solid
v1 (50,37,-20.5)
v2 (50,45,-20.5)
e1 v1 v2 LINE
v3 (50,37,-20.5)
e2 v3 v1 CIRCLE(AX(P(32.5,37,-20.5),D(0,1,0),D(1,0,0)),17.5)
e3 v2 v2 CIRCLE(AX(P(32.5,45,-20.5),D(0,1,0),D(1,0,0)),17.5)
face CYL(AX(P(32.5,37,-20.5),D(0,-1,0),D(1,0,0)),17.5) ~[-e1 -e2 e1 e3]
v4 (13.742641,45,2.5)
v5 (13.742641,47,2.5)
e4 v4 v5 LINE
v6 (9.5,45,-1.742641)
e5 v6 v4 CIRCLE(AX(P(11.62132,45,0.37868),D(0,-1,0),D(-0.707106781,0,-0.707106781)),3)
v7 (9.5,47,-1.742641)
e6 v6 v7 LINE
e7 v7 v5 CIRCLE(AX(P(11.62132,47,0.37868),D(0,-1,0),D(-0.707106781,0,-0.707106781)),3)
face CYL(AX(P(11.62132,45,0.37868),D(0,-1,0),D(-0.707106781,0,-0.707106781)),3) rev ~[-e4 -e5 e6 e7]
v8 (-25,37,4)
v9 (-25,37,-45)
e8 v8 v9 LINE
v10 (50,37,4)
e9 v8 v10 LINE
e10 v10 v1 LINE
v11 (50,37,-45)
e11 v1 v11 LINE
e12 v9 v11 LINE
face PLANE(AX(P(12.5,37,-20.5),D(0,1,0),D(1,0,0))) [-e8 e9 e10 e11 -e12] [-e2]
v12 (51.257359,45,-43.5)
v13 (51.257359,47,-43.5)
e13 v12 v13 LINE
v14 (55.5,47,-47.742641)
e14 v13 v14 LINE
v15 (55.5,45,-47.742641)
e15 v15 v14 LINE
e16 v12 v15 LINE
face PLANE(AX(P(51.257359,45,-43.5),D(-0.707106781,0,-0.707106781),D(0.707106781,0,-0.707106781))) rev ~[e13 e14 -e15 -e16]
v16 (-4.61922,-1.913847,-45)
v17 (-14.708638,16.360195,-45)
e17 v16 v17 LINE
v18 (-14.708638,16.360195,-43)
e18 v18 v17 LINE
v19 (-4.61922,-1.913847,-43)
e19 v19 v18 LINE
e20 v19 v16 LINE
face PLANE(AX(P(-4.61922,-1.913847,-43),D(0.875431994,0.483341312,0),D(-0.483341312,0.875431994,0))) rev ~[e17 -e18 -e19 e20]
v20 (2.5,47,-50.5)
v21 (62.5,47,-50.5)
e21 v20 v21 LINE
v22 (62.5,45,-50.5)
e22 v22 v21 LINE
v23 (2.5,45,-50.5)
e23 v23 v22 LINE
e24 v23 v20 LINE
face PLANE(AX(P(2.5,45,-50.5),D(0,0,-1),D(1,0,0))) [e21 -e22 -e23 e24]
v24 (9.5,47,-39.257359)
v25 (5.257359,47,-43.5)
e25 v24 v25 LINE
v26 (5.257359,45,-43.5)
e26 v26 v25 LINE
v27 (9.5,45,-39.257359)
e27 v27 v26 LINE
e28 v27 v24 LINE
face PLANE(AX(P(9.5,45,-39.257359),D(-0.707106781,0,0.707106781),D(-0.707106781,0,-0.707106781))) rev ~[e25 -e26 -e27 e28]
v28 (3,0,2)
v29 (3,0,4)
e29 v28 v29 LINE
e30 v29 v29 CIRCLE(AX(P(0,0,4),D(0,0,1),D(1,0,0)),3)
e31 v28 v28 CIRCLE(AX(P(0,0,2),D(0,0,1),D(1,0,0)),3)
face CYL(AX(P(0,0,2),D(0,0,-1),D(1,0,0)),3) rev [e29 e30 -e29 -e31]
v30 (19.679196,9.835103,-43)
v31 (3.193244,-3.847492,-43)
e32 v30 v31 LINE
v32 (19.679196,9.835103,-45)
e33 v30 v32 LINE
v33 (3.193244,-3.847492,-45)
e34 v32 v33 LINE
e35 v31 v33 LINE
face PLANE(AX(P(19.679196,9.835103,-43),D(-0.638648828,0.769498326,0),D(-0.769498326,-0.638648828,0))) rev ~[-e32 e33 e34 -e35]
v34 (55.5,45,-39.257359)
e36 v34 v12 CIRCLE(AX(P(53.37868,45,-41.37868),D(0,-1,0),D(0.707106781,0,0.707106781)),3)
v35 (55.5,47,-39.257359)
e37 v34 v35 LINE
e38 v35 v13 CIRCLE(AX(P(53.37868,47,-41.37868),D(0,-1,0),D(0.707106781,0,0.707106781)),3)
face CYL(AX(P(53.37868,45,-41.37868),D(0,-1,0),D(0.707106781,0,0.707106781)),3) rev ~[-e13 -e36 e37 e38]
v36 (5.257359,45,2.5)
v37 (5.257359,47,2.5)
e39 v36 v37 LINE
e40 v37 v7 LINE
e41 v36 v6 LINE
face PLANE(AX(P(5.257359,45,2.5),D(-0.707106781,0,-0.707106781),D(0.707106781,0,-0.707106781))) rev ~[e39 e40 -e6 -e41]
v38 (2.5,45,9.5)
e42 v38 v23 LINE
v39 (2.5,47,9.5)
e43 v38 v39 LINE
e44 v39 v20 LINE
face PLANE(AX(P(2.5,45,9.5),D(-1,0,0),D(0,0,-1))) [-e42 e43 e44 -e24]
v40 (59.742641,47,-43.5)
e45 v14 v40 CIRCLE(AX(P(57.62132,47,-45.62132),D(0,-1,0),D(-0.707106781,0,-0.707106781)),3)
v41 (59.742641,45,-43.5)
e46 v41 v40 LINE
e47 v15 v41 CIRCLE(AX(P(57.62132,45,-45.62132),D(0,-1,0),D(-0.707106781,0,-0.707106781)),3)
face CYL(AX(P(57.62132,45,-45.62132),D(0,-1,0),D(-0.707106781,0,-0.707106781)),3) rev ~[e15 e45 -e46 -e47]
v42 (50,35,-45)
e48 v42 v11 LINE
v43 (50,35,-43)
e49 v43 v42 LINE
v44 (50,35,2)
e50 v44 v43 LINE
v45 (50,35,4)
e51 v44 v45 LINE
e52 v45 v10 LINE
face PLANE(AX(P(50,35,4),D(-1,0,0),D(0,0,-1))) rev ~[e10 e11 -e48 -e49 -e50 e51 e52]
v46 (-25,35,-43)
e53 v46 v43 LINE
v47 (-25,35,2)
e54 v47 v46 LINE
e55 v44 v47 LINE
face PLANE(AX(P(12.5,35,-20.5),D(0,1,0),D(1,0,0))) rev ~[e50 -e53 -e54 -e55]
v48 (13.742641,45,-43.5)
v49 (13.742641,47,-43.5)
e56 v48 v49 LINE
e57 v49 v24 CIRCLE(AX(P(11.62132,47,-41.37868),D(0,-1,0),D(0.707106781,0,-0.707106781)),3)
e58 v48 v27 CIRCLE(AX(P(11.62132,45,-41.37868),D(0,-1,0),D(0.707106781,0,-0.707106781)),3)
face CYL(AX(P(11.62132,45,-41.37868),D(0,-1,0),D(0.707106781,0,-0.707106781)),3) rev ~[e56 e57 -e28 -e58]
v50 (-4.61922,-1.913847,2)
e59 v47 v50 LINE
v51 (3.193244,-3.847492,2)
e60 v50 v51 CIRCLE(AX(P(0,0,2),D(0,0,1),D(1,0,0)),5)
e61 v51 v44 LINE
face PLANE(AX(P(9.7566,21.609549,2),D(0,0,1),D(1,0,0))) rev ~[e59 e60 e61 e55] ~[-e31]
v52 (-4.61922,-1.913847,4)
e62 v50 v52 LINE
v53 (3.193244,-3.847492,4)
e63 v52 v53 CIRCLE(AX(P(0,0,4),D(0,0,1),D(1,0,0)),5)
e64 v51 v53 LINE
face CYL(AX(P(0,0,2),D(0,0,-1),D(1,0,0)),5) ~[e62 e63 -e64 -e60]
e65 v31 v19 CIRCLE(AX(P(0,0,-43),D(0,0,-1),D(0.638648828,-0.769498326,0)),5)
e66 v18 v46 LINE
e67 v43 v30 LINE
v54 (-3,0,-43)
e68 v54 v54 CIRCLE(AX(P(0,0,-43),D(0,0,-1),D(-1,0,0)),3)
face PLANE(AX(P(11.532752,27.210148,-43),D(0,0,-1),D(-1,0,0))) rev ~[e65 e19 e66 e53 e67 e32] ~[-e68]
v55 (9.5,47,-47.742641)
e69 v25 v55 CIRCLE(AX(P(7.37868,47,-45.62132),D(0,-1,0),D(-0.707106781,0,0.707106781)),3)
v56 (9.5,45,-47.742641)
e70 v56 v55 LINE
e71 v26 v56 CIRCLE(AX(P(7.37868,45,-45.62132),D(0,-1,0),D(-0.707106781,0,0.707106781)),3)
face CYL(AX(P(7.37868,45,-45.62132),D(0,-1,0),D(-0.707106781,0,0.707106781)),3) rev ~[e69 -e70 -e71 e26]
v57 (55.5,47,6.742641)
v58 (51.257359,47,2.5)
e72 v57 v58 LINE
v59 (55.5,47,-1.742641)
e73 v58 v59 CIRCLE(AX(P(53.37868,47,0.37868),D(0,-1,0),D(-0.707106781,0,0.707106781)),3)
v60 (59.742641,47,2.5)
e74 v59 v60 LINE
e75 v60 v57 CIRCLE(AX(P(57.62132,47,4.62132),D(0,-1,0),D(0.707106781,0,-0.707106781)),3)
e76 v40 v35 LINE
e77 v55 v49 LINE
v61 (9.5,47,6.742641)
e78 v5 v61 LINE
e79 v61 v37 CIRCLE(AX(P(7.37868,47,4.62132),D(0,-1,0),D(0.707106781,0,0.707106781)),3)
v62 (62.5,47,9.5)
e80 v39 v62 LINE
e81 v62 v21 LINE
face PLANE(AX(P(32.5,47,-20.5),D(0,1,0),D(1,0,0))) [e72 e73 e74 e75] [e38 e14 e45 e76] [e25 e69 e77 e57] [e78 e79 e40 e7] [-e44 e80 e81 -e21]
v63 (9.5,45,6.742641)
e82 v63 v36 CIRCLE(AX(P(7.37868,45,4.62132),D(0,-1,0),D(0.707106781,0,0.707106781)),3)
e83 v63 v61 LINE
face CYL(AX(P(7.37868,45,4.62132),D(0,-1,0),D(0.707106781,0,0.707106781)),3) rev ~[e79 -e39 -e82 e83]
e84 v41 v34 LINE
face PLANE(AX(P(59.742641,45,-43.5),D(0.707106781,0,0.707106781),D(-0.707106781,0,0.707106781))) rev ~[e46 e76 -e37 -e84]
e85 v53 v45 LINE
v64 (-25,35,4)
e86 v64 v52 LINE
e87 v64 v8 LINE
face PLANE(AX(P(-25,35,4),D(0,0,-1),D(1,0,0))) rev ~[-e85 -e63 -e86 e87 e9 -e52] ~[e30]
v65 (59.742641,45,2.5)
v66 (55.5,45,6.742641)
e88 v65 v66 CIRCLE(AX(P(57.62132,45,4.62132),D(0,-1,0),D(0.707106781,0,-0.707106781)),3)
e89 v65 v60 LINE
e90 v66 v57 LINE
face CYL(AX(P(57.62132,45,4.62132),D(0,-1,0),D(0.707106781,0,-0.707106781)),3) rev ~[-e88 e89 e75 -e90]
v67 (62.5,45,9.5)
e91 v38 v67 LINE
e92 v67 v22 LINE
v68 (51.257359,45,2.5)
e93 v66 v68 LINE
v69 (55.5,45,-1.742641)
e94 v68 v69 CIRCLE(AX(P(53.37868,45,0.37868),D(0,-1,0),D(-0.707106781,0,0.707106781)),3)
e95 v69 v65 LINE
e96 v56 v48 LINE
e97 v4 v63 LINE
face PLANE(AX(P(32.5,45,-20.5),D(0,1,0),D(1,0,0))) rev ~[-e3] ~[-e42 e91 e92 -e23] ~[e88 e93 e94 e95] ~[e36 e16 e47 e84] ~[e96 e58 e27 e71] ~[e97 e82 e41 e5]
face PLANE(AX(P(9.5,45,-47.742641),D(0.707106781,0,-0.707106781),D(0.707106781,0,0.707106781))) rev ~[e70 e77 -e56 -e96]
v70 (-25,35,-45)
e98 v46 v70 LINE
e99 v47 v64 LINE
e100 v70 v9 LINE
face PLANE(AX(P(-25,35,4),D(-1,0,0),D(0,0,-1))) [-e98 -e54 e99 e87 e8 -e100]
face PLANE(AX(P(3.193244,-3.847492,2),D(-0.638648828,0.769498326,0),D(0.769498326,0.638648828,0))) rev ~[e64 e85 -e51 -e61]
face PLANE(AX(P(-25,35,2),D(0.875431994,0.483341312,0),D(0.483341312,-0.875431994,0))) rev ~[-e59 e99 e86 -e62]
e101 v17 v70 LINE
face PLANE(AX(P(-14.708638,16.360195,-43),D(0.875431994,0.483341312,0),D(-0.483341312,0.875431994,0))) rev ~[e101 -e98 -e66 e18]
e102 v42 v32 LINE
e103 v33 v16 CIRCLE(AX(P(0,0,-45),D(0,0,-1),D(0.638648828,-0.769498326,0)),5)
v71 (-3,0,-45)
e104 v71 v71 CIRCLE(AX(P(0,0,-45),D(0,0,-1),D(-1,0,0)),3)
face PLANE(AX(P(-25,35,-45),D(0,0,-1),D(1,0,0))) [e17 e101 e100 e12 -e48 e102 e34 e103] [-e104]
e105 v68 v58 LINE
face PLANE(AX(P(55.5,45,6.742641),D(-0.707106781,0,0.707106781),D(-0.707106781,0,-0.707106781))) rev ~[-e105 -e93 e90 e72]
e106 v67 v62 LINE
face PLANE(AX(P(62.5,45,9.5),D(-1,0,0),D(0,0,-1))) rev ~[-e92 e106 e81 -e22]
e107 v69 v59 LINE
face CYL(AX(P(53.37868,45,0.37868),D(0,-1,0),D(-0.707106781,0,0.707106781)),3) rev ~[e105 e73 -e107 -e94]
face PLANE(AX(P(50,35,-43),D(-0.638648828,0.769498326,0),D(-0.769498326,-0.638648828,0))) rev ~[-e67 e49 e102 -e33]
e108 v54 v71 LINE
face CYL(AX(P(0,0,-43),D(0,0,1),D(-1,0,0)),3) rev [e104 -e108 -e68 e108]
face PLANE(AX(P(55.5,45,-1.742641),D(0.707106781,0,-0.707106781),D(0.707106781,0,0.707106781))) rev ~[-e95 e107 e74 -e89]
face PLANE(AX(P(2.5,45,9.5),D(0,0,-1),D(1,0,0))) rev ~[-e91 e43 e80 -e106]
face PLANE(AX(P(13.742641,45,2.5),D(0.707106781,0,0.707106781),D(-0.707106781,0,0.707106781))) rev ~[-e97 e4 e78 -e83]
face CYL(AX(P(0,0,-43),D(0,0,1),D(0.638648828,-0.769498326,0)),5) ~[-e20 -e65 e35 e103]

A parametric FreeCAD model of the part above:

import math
import FreeCAD as App
import Part
import Sketcher
from FreeCAD import Vector
Q = App.Units.Quantity

doc = App.newDocument("Part")
body = doc.addObject("PartDesign::Body", "Body")

# Sketch on XY plane
sketch1 = body.newObject("Sketcher::SketchObject", "Sketch")
sketch1.AttachmentSupport = (doc.getObject("XY_Plane"), [""])
sketch1.MapMode = "FlatFace"
sketch1.AttachmentOffset = App.Placement(Vector(0, 0, 2), App.Rotation())
sketch1.addGeometry(Part.LineSegment(Vector(50, 35, 0), Vector(-25, 35, 0)), False)
sketch1.addGeometry(Part.LineSegment(Vector(-25, 35, 0), Vector(-4.6, -1.9, 0)), False)
sketch1.addGeometry(Part.ArcOfCircle(Part.Circle(Vector(0, 0, 0), Vector(0, 0, 1), 5), math.radians(-157), math.radians(-50)), False)
sketch1.addGeometry(Part.LineSegment(Vector(3.2, -3.8, 0), Vector(50, 35, 0)), False)
sketch1.addGeometry(Part.Circle(Vector(0, 0, 0), Vector(0, 0, 1), 3), False)
sketch1.addConstraint(Sketcher.Constraint("Coincident", 0, 2, 1, 1))
sketch1.addConstraint(Sketcher.Constraint("Coincident", 1, 2, 2, 1))
sketch1.addConstraint(Sketcher.Constraint("Tangent", 2, 2, 3, 1))
sketch1.addConstraint(Sketcher.Constraint("Coincident", 3, 2, 0, 1))
sketch1.addConstraint(Sketcher.Constraint("Horizontal", 0))
sketch1.addConstraint(Sketcher.Constraint("Coincident", 2, 3, -1, 1))
sketch1.addConstraint(Sketcher.Constraint("Coincident", 4, 3, -1, 1))
sketch1.addConstraint(Sketcher.Constraint("Diameter", 4, Q("6 mm")))
sketch1.addConstraint(Sketcher.Constraint("Radius", 2, Q("5 mm")))
sketch1.addConstraint(Sketcher.Constraint("DistanceX", 0, 2, 0, 1, Q("75 mm")))
sketch1.addConstraint(Sketcher.Constraint("DistanceX", 0, 2, -1, 1, Q("25 mm")))
sketch1.addConstraint(Sketcher.Constraint("DistanceY", -1, 1, 0, 2, Q("35 mm")))
sketch1.addConstraint(Sketcher.Constraint("DistanceX", 1, 2, -1, 1, Q("4.61922 mm")))
pad1 = body.newObject("PartDesign::Pad", "Pad")
pad1.Profile = sketch1
pad1.Length = 2
body2 = doc.addObject("PartDesign::Body", "Body001")

# Sketch on XY plane
sketch2 = body2.newObject("Sketcher::SketchObject", "Sketch001")
sketch2.AttachmentSupport = (doc.getObject("XY_Plane001"), [""])
sketch2.MapMode = "FlatFace"
sketch2.AttachmentOffset = App.Placement(Vector(0, 0, -43), App.Rotation())
sketch2.addGeometry(Part.LineSegment(Vector(-14.7, 16.4, 0), Vector(-25, 35, 0)), False)
sketch2.addGeometry(Part.LineSegment(Vector(-25, 35, 0), Vector(50, 35, 0)), False)
sketch2.addGeometry(Part.LineSegment(Vector(50, 35, 0), Vector(19.7, 9.8, 0)), False)
sketch2.addGeometry(Part.LineSegment(Vector(19.7, 9.8, 0), Vector(3.2, -3.8, 0)), False)
sketch2.addGeometry(Part.ArcOfCircle(Part.Circle(Vector(0, 0, 0), Vector(0, 0, 1), 5), math.radians(-157), math.radians(-50)), False)
sketch2.addGeometry(Part.LineSegment(Vector(-4.6, -1.9, 0), Vector(-14.7, 16.4, 0)), False)
sketch2.addGeometry(Part.Circle(Vector(0, 0, 0), Vector(0, 0, 1), 3), False)
sketch2.addConstraint(Sketcher.Constraint("Coincident", 0, 2, 1, 1))
sketch2.addConstraint(Sketcher.Constraint("Coincident", 1, 2, 2, 1))
sketch2.addConstraint(Sketcher.Constraint("Coincident", 2, 2, 3, 1))
sketch2.addConstraint(Sketcher.Constraint("Tangent", 3, 2, 4, 2))
sketch2.addConstraint(Sketcher.Constraint("Coincident", 4, 1, 5, 1))
sketch2.addConstraint(Sketcher.Constraint("Coincident", 5, 2, 0, 1))
sketch2.addConstraint(Sketcher.Constraint("Horizontal", 1))
sketch2.addConstraint(Sketcher.Constraint("Coincident", 4, 3, -1, 1))
sketch2.addConstraint(Sketcher.Constraint("Coincident", 6, 3, -1, 1))
sketch2.addConstraint(Sketcher.Constraint("Parallel", 2, 3))
sketch2.addConstraint(Sketcher.Constraint("Parallel", 0, 5))
sketch2.addConstraint(Sketcher.Constraint("Diameter", 6, Q("6 mm")))
sketch2.addConstraint(Sketcher.Constraint("Radius", 4, Q("5 mm")))
sketch2.addConstraint(Sketcher.Constraint("DistanceX", 1, 1, 1, 2, Q("75 mm")))
sketch2.addConstraint(Sketcher.Constraint("DistanceX", 0, 2, -1, 1, Q("25 mm")))
sketch2.addConstraint(Sketcher.Constraint("DistanceY", -1, 1, 0, 2, Q("35 mm")))
sketch2.addConstraint(Sketcher.Constraint("Distance", 2, Q("39.40334 mm")))
sketch2.addConstraint(Sketcher.Constraint("DistanceX", 4, 1, -1, 1, Q("4.61922 mm")))
sketch2.addConstraint(Sketcher.Constraint("DistanceX", 5, 2, 4, 1, Q("10.089418 mm")))
pad2 = body2.newObject("PartDesign::Pad", "Pad001")
pad2.Profile = sketch2
pad2.Length = 2
pad2.Reversed = True
body.AllowCompound = True
doc.recompute()

boolean = body.newObject("PartDesign::Boolean", "Boolean")
boolean.Type = "Fuse"
boolean.addObjects([body2])

# Sketch on XZ plane
sketch3 = body.newObject("Sketcher::SketchObject", "Sketch002")
sketch3.AttachmentSupport = (doc.getObject("XZ_Plane"), [""])
sketch3.MapMode = "FlatFace"
sketch3.AttachmentOffset = App.Placement(Vector(0, 0, -35), App.Rotation())
sketch3.addGeometry(Part.LineSegment(Vector(-25, -45, 0), Vector(-25, 4, 0)), False)
sketch3.addGeometry(Part.LineSegment(Vector(-25, 4, 0), Vector(50, 4, 0)), False)
sketch3.addGeometry(Part.LineSegment(Vector(50, 4, 0), Vector(50, -45, 0)), False)
sketch3.addGeometry(Part.LineSegment(Vector(50, -45, 0), Vector(-25, -45, 0)), False)
sketch3.addConstraint(Sketcher.Constraint("Coincident", 0, 2, 1, 1))
sketch3.addConstraint(Sketcher.Constraint("Coincident", 1, 2, 2, 1))
sketch3.addConstraint(Sketcher.Constraint("Coincident", 2, 2, 3, 1))
sketch3.addConstraint(Sketcher.Constraint("Coincident", 3, 2, 0, 1))
sketch3.addConstraint(Sketcher.Constraint("Vertical", 0))
sketch3.addConstraint(Sketcher.Constraint("Horizontal", 1))
sketch3.addConstraint(Sketcher.Constraint("Vertical", 2))
sketch3.addConstraint(Sketcher.Constraint("Horizontal", 3))
sketch3.addConstraint(Sketcher.Constraint("DistanceX", 1, 1, 1, 2, Q("75 mm")))
sketch3.addConstraint(Sketcher.Constraint("DistanceY", 0, 1, 0, 2, Q("49 mm")))
sketch3.addConstraint(Sketcher.Constraint("DistanceX", 0, 2, -1, 1, Q("25 mm")))
sketch3.addConstraint(Sketcher.Constraint("DistanceY", -1, 1, 0, 2, Q("4 mm")))
pad3 = body.newObject("PartDesign::Pad", "Pad002")
pad3.Profile = sketch3
pad3.Length = 2
pad3.Reversed = True

# Sketch on XZ plane
sketch4 = body.newObject("Sketcher::SketchObject", "Sketch003")
sketch4.AttachmentSupport = (doc.getObject("XZ_Plane"), [""])
sketch4.MapMode = "FlatFace"
sketch4.AttachmentOffset = App.Placement(Vector(0, 0, -37), App.Rotation())
sketch4.addGeometry(Part.Circle(Vector(32, -20, 0), Vector(0, 0, 1), 18), False)
sketch4.addConstraint(Sketcher.Constraint("Diameter", 0, Q("35 mm")))
sketch4.addConstraint(Sketcher.Constraint("DistanceX", -1, 1, 0, 3, Q("32.5 mm")))
sketch4.addConstraint(Sketcher.Constraint("DistanceY", 0, 3, -1, 1, Q("20.5 mm")))
pad4 = body.newObject("PartDesign::Pad", "Pad003")
pad4.Profile = sketch4
pad4.Length = 8
pad4.Reversed = True

# Sketch on XZ plane
sketch5 = body.newObject("Sketcher::SketchObject", "Sketch004")
sketch5.AttachmentSupport = (doc.getObject("XZ_Plane"), [""])
sketch5.MapMode = "FlatFace"
sketch5.AttachmentOffset = App.Placement(Vector(0, 0, -45), App.Rotation())
sketch5.addGeometry(Part.LineSegment(Vector(2.5, -50.5, 0), Vector(2.5, 9.5, 0)), False)
sketch5.addGeometry(Part.LineSegment(Vector(2.5, 9.5, 0), Vector(62.5, 9.5, 0)), False)
sketch5.addGeometry(Part.LineSegment(Vector(62.5, 9.5, 0), Vector(62.5, -50.5, 0)), False)
sketch5.addGeometry(Part.LineSegment(Vector(62.5, -50.5, 0), Vector(2.5, -50.5, 0)), False)
sketch5.addGeometry(Part.ArcOfCircle(Part.Circle(Vector(7.4, 4.6, 0), Vector(0, 0, 1), 3), math.radians(45), math.radians(225)), False)
sketch5.addGeometry(Part.LineSegment(Vector(5.3, 2.5, 0), Vector(9.5, -1.7, 0)), False)
sketch5.addGeometry(Part.ArcOfCircle(Part.Circle(Vector(11.6, 0.4, 0), Vector(0, 0, 1), 3), math.radians(-135), math.radians(45)), False)
sketch5.addGeometry(Part.LineSegment(Vector(13.7, 2.5, 0), Vector(9.5, 6.7, 0)), False)
sketch5.addGeometry(Part.ArcOfCircle(Part.Circle(Vector(57.6, 4.6, 0), Vector(0, 0, 1), 3), math.radians(-45), math.radians(135)), False)
sketch5.addGeometry(Part.LineSegment(Vector(55.5, 6.7, 0), Vector(51.3, 2.5, 0)), False)
sketch5.addGeometry(Part.ArcOfCircle(Part.Circle(Vector(53.4, 0.4, 0), Vector(0, 0, 1), 3), math.radians(135), math.radians(315)), False)
sketch5.addGeometry(Part.LineSegment(Vector(55.5, -1.7, 0), Vector(59.7, 2.5, 0)), False)
sketch5.addGeometry(Part.ArcOfCircle(Part.Circle(Vector(7.4, -45.6, 0), Vector(0, 0, 1), 3), math.radians(135), math.radians(315)), False)
sketch5.addGeometry(Part.LineSegment(Vector(9.5, -47.7, 0), Vector(13.7, -43.5, 0)), False)
sketch5.addGeometry(Part.ArcOfCircle(Part.Circle(Vector(11.6, -41.4, 0), Vector(0, 0, 1), 3), math.radians(-45), math.radians(135)), False)
sketch5.addGeometry(Part.LineSegment(Vector(9.5, -39.3, 0), Vector(5.3, -43.5, 0)), False)
sketch5.addGeometry(Part.ArcOfCircle(Part.Circle(Vector(57.6, -45.6, 0), Vector(0, 0, 1), 3), math.radians(-135), math.radians(45)), False)
sketch5.addGeometry(Part.LineSegment(Vector(59.7, -43.5, 0), Vector(55.5, -39.3, 0)), False)
sketch5.addGeometry(Part.ArcOfCircle(Part.Circle(Vector(53.4, -41.4, 0), Vector(0, 0, 1), 3), math.radians(45), math.radians(225)), False)
sketch5.addGeometry(Part.LineSegment(Vector(51.3, -43.5, 0), Vector(55.5, -47.7, 0)), False)
sketch5.addConstraint(Sketcher.Constraint("Coincident", 0, 2, 1, 1))
sketch5.addConstraint(Sketcher.Constraint("Coincident", 1, 2, 2, 1))
sketch5.addConstraint(Sketcher.Constraint("Coincident", 2, 2, 3, 1))
sketch5.addConstraint(Sketcher.Constraint("Coincident", 3, 2, 0, 1))
sketch5.addConstraint(Sketcher.Constraint("Tangent", 4, 2, 5, 1))
sketch5.addConstraint(Sketcher.Constraint("Tangent", 5, 2, 6, 1))
sketch5.addConstraint(Sketcher.Constraint("Tangent", 6, 2, 7, 1))
sketch5.addConstraint(Sketcher.Constraint("Tangent", 7, 2, 4, 1))
sketch5.addConstraint(Sketcher.Constraint("Tangent", 8, 2, 9, 1))
sketch5.addConstraint(Sketcher.Constraint("Tangent", 9, 2, 10, 1))
sketch5.addConstraint(Sketcher.Constraint("Tangent", 10, 2, 11, 1))
sketch5.addConstraint(Sketcher.Constraint("Tangent", 11, 2, 8, 1))
sketch5.addConstraint(Sketcher.Constraint("Tangent", 12, 2, 13, 1))
sketch5.addConstraint(Sketcher.Constraint("Tangent", 13, 2, 14, 1))
sketch5.addConstraint(Sketcher.Constraint("Tangent", 14, 2, 15, 1))
sketch5.addConstraint(Sketcher.Constraint("Tangent", 15, 2, 12, 1))
sketch5.addConstraint(Sketcher.Constraint("Tangent", 16, 2, 17, 1))
sketch5.addConstraint(Sketcher.Constraint("Tangent", 17, 2, 18, 1))
sketch5.addConstraint(Sketcher.Constraint("Tangent", 18, 2, 19, 1))
sketch5.addConstraint(Sketcher.Constraint("Tangent", 19, 2, 16, 1))
sketch5.addConstraint(Sketcher.Constraint("Vertical", 0))
sketch5.addConstraint(Sketcher.Constraint("Horizontal", 1))
sketch5.addConstraint(Sketcher.Constraint("Vertical", 2))
sketch5.addConstraint(Sketcher.Constraint("Horizontal", 3))
sketch5.addConstraint(Sketcher.Constraint("Equal", 4, 6))
sketch5.addConstraint(Sketcher.Constraint("Equal", 6, 8))
sketch5.addConstraint(Sketcher.Constraint("Equal", 8, 10))
sketch5.addConstraint(Sketcher.Constraint("Equal", 10, 12))
sketch5.addConstraint(Sketcher.Constraint("Equal", 12, 14))
sketch5.addConstraint(Sketcher.Constraint("Equal", 14, 16))
sketch5.addConstraint(Sketcher.Constraint("Equal", 16, 18))
sketch5.addConstraint(Sketcher.Constraint("Perpendicular", 7, 9))
sketch5.addConstraint(Sketcher.Constraint("Parallel", 11, 13))
sketch5.addConstraint(Sketcher.Constraint("Perpendicular", 15, 17))
sketch5.addConstraint(Sketcher.Constraint("Horizontal", 4, 3, 8, 3))
sketch5.addConstraint(Sketcher.Constraint("Horizontal", 6, 3, 10, 3))
sketch5.addConstraint(Sketcher.Constraint("Horizontal", 12, 3, 16, 3))
sketch5.addConstraint(Sketcher.Constraint("Horizontal", 14, 3, 18, 3))
sketch5.addConstraint(Sketcher.Constraint("Horizontal", 4, 2, 6, 2))
sketch5.addConstraint(Sketcher.Constraint("Horizontal", 7, 2, 8, 2))
sketch5.addConstraint(Sketcher.Constraint("Horizontal", 13, 2, 15, 2))
sketch5.addConstraint(Sketcher.Constraint("Vertical", 4, 3, 12, 3))
sketch5.addConstraint(Sketcher.Constraint("Vertical", 8, 3, 16, 3))
sketch5.addConstraint(Sketcher.Constraint("Equal", 3, 0))
sketch5.addConstraint(Sketcher.Constraint("Radius", 4, Q("3 mm")))
sketch5.addConstraint(Sketcher.Constraint("DistanceX", 1, 1, 1, 2, Q("60 mm")))
sketch5.addConstraint(Sketcher.Constraint("DistanceX", 6, 3, 8, 3, Q("46 mm")))
sketch5.addConstraint(Sketcher.Constraint("DistanceY", 12, 3, 6, 3, Q("46 mm")))
sketch5.addConstraint(Sketcher.Constraint("DistanceY", 4, 2, 0, 2, Q("7 mm")))
sketch5.addConstraint(Sketcher.Constraint("DistanceX", 0, 2, 5, 2, Q("7 mm")))
sketch5.addConstraint(Sketcher.Constraint("DistanceX", -1, 1, 0, 2, Q("2.5 mm")))
sketch5.addConstraint(Sketcher.Constraint("DistanceY", -1, 1, 0, 2, Q("9.5 mm")))
pad5 = body.newObject("PartDesign::Pad", "Pad004")
pad5.Profile = sketch5
pad5.Length = 2
pad5.Reversed = True

doc.recompute()
